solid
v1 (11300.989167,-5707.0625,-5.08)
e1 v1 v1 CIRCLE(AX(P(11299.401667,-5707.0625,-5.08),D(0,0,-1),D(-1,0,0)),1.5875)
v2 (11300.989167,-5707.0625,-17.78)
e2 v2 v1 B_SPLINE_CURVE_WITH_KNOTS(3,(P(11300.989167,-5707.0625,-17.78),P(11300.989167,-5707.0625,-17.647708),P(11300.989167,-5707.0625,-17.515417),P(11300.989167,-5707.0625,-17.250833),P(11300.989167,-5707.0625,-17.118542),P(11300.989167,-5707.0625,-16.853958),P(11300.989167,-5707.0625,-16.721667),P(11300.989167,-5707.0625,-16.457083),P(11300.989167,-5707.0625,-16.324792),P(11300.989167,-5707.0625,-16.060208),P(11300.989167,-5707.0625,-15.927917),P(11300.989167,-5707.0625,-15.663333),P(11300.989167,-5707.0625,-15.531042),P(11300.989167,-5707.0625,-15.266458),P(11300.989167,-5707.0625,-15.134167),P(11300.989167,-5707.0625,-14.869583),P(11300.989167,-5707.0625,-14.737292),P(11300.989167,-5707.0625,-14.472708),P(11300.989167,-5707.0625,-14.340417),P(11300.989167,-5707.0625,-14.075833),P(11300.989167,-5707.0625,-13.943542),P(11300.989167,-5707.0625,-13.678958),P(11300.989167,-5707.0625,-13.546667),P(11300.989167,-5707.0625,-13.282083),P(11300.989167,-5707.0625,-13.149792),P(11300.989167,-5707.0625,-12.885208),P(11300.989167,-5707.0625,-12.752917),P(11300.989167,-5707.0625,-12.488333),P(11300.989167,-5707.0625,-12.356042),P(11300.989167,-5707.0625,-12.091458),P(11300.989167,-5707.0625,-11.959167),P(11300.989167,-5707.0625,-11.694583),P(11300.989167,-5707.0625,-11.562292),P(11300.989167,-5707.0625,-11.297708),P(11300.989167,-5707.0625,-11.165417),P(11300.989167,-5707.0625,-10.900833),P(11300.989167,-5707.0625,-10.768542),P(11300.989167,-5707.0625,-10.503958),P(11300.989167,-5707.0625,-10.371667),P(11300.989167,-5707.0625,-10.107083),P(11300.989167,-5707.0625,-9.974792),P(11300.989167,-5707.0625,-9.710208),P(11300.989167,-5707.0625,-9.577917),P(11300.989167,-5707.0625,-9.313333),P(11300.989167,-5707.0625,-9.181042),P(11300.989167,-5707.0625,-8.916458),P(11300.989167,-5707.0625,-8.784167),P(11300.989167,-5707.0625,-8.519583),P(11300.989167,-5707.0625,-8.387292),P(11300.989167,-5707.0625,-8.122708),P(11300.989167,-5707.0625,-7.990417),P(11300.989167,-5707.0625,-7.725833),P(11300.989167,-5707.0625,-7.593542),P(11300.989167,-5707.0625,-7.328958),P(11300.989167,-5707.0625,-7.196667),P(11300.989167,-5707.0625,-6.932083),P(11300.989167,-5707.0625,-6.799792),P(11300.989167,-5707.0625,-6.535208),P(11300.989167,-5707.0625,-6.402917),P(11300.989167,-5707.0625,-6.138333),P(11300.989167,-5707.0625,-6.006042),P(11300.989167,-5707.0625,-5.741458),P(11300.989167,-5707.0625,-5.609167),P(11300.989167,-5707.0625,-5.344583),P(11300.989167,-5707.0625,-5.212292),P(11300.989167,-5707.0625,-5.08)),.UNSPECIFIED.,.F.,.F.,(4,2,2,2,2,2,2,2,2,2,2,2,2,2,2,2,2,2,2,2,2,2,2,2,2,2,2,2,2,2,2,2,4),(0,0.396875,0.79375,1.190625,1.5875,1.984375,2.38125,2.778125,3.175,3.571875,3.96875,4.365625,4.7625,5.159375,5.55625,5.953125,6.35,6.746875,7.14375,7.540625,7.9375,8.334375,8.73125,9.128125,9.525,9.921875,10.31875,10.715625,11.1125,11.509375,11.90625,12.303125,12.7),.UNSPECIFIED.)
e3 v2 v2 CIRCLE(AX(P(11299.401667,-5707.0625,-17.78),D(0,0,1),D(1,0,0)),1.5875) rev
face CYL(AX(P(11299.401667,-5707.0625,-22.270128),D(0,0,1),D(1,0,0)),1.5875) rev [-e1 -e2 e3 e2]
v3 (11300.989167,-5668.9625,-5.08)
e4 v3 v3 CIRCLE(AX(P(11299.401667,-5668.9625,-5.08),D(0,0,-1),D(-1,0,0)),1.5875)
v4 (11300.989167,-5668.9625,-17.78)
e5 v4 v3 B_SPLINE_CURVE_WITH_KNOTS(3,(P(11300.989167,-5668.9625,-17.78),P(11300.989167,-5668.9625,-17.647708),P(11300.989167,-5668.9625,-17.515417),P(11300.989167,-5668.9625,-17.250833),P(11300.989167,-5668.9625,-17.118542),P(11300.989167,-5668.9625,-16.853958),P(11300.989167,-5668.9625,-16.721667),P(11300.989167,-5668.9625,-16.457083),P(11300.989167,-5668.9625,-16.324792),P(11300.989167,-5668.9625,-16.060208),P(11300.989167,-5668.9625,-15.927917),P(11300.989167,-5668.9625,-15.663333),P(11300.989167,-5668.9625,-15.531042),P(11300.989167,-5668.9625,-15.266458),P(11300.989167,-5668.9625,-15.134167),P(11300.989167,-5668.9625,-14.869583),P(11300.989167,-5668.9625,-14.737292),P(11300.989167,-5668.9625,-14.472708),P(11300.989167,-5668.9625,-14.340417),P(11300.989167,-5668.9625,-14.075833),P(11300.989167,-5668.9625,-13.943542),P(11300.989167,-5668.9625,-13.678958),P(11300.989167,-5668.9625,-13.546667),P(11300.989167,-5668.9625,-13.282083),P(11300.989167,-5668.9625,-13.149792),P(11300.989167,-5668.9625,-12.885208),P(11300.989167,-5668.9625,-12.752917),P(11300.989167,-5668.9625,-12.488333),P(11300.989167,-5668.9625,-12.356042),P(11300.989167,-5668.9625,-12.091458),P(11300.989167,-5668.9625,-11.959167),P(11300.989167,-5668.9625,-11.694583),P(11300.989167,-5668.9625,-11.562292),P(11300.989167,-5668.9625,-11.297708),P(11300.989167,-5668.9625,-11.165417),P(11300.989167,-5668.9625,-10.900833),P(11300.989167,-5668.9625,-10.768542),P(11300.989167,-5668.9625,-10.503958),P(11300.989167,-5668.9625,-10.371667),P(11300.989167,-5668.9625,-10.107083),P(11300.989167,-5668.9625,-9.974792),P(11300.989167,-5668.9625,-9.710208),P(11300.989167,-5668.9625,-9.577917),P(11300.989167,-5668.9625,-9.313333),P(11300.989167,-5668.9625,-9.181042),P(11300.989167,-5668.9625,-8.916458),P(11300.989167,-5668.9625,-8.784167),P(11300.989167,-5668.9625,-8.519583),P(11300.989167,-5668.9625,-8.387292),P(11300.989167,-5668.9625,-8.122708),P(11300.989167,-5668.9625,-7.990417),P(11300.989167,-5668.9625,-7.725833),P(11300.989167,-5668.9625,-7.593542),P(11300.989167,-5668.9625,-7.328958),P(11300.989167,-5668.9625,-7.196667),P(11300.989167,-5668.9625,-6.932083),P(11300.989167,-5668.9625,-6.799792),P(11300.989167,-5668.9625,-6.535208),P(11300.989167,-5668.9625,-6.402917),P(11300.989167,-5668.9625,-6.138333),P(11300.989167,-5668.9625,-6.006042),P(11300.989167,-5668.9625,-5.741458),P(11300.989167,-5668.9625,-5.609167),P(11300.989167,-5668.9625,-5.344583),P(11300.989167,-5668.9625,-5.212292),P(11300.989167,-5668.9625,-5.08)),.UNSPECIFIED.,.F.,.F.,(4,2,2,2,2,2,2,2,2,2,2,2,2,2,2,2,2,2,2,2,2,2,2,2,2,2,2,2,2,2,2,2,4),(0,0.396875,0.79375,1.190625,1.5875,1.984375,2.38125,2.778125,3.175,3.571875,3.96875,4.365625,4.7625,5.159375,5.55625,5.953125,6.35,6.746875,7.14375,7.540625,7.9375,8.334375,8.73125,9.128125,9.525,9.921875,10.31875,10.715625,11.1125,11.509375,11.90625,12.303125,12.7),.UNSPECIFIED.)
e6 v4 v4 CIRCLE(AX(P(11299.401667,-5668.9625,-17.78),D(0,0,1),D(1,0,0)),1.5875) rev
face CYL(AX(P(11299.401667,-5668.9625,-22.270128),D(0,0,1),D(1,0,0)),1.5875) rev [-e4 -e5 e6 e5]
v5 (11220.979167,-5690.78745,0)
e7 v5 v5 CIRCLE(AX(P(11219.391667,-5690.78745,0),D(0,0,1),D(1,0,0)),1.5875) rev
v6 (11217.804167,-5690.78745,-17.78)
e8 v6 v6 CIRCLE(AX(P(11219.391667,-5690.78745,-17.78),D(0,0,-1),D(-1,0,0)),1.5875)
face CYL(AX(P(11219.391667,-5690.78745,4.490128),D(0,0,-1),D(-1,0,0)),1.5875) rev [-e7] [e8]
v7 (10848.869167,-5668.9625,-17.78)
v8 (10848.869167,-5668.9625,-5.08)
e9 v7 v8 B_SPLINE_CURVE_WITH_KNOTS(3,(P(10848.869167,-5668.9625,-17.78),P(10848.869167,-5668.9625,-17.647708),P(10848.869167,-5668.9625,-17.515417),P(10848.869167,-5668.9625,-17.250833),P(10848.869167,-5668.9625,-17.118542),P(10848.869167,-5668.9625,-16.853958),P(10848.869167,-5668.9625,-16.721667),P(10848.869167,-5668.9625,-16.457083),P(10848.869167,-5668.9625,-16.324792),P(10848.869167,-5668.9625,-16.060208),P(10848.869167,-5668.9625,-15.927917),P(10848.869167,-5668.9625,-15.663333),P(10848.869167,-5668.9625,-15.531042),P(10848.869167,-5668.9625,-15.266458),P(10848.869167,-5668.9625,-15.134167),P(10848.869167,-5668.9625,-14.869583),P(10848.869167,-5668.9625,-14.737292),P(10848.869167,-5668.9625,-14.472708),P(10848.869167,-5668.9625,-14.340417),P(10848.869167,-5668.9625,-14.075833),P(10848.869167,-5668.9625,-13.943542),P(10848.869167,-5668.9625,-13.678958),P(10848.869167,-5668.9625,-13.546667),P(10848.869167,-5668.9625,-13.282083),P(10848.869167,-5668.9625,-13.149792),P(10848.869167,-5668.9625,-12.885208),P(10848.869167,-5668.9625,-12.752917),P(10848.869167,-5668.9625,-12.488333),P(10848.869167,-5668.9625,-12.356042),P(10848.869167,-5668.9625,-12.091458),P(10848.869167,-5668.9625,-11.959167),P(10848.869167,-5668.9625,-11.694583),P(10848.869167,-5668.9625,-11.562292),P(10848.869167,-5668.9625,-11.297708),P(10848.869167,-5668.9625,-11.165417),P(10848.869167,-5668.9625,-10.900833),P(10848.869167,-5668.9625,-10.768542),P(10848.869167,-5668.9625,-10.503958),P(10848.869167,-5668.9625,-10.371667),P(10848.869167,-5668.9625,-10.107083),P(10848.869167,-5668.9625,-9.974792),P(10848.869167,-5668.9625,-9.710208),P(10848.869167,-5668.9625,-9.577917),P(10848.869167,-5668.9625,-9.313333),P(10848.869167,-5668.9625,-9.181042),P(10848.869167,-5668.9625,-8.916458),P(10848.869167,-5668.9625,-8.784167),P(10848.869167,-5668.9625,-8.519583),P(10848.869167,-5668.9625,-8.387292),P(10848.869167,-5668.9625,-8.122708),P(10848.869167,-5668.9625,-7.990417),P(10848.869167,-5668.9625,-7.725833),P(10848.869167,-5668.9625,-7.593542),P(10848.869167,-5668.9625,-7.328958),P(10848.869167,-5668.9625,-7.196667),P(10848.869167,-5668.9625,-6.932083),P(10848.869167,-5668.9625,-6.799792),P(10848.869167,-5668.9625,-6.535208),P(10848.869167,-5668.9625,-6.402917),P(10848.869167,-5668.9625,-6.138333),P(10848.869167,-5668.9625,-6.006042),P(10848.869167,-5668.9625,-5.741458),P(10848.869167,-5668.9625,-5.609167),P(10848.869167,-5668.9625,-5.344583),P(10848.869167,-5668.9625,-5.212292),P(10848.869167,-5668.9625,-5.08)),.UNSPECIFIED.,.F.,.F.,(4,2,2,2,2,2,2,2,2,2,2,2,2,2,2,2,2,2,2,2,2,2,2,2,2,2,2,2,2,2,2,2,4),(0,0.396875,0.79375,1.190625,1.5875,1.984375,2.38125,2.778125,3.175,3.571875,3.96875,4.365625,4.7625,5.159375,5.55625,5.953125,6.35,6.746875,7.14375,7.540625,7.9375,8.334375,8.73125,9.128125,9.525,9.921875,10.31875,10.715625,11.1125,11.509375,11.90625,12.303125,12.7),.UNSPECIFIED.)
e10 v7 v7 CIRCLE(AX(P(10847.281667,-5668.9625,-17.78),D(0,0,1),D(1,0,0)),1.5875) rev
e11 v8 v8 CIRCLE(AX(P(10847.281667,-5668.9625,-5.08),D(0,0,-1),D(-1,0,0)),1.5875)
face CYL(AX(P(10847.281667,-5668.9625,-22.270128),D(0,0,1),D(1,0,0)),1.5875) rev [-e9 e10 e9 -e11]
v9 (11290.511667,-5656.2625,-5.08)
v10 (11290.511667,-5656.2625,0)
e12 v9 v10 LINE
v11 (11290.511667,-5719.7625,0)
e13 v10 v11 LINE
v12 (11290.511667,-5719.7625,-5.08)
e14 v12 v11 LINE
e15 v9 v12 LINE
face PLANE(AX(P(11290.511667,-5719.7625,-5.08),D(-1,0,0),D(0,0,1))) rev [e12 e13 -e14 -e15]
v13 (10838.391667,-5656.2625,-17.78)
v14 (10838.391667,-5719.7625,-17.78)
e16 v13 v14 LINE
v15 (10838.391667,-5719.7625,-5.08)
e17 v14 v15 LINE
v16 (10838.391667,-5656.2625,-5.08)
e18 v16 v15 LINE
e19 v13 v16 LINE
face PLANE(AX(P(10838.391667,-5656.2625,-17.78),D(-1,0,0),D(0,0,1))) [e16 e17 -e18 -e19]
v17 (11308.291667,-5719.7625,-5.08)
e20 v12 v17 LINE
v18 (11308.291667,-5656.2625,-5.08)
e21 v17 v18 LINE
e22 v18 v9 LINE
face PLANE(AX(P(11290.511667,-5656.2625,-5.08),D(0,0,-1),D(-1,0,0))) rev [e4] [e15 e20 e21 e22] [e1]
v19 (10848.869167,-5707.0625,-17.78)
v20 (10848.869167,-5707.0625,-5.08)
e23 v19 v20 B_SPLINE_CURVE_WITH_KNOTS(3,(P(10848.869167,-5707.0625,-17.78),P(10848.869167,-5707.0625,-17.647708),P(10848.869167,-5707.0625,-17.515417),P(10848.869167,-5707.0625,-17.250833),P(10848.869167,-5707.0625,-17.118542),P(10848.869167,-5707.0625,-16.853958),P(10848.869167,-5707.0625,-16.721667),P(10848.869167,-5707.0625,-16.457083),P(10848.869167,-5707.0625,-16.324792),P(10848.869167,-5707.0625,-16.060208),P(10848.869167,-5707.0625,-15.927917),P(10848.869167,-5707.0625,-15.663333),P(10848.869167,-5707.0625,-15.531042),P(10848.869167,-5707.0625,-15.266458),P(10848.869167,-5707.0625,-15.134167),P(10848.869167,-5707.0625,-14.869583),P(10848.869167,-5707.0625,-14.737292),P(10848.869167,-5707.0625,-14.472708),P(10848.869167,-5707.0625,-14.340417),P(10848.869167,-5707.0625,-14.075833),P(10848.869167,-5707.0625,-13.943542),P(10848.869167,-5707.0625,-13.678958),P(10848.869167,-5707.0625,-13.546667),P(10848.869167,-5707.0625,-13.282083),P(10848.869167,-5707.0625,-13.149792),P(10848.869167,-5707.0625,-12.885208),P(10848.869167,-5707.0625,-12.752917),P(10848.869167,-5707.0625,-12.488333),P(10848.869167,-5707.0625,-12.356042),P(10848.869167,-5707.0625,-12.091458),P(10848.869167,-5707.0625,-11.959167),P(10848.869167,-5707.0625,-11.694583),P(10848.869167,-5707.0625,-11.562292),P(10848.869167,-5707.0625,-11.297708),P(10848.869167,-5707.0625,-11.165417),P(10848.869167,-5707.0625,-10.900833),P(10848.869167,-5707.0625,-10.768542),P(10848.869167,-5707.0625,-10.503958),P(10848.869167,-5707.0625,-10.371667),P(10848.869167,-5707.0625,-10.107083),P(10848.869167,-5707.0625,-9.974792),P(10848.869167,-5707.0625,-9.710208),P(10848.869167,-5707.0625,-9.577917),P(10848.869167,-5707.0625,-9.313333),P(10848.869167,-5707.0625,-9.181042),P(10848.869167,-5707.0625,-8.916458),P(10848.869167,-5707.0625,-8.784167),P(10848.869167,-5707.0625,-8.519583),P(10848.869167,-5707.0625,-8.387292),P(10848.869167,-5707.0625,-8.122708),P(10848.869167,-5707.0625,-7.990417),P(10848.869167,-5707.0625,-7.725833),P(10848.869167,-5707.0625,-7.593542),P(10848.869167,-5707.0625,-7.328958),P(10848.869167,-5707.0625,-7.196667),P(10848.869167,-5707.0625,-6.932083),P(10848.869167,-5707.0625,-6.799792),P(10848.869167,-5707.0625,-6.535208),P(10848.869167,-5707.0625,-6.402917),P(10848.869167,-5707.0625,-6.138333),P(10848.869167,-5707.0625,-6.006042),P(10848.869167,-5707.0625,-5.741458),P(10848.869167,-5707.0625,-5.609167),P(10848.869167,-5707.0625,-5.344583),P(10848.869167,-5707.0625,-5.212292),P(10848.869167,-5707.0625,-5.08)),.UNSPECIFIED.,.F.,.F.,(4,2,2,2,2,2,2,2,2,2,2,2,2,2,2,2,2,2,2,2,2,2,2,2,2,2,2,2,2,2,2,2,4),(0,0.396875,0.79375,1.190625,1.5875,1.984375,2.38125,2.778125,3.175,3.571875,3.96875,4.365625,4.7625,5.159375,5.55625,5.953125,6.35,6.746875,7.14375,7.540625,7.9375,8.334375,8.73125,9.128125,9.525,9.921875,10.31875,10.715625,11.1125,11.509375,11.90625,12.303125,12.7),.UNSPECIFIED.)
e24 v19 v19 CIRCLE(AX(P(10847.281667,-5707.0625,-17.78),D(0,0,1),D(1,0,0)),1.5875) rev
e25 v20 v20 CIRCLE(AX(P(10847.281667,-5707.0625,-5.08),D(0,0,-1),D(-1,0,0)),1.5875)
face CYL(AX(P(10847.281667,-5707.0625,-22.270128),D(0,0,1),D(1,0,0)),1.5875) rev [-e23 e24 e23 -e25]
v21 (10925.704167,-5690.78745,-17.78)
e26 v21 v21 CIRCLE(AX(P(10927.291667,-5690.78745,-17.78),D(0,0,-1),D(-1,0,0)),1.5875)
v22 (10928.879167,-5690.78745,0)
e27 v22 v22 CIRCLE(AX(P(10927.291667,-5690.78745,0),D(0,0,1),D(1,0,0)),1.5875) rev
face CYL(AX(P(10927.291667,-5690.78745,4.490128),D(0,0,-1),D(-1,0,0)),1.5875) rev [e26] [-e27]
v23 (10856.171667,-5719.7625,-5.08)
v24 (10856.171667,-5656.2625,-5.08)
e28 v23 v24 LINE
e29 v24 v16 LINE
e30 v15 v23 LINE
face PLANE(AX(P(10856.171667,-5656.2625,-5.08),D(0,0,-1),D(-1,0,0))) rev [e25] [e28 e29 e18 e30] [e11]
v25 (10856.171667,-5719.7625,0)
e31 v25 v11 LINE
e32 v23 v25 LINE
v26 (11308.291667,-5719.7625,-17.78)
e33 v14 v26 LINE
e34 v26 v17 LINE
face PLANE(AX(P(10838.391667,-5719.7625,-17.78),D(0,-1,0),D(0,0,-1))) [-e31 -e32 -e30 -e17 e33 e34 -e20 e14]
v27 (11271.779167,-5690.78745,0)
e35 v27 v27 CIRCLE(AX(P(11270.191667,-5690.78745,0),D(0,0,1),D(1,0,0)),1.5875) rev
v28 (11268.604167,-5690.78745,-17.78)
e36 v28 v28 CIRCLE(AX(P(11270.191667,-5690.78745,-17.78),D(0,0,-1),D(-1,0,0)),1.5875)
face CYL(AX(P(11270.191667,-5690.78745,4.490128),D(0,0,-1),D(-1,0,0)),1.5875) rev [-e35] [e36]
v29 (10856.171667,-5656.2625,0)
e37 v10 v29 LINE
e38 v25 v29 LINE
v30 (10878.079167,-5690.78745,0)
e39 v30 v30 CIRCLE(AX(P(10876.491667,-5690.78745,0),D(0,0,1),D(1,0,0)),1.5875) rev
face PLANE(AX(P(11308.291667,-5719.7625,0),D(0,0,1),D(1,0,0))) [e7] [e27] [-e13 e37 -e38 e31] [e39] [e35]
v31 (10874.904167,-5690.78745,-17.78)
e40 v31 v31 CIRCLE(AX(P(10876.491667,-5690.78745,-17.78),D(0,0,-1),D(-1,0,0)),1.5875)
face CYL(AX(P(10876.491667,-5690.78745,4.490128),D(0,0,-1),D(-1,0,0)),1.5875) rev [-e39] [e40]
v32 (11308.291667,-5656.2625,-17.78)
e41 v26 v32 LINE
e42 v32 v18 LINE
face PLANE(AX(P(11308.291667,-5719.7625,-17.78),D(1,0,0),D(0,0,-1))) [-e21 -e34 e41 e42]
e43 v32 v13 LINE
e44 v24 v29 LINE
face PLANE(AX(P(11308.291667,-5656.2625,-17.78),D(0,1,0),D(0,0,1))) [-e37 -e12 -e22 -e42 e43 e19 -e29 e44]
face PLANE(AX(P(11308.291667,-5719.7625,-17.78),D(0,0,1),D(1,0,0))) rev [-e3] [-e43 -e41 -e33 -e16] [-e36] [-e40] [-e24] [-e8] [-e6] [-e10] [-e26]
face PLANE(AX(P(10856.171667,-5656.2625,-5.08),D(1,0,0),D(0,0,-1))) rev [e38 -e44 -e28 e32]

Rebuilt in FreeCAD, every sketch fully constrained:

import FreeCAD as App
import Part
import Sketcher
from FreeCAD import Vector
Q = App.Units.Quantity


def add_polygon(sketch, points):
    """Adds a closed chain of lines whose ends are joined by coincident constraints."""
    first, n = sketch.GeometryCount, len(points)
    for a, b in zip(points, points[1:] + points[:1]):
        sketch.addGeometry(Part.LineSegment(App.Vector(*a, 0), App.Vector(*b, 0)), False)
    for i in range(n):
        sketch.addConstraint(Sketcher.Constraint("Coincident", first + i, 2, first + (i + 1) % n, 1))

doc = App.newDocument("Part")
body = doc.addObject("PartDesign::Body", "Body")

sketch1 = doc.addObject("Sketcher::SketchObject", "Sketch")
body.addObject(sketch1)
sketch1.AttachmentSupport = (doc.XY_Plane, [""])
sketch1.MapMode = "FlatFace"
add_polygon(sketch1, [(10838, -5656), (10838, -5720), (11308, -5720), (11308, -5656)])
sketch1.addConstraint(Sketcher.Constraint("Vertical", 0))
sketch1.addConstraint(Sketcher.Constraint("Horizontal", 1))
sketch1.addConstraint(Sketcher.Constraint("Vertical", 2))
sketch1.addConstraint(Sketcher.Constraint("Horizontal", 3))
sketch1.addConstraint(Sketcher.Constraint("DistanceX", 1, 1, 1, 2, Q("18.5 in")))
sketch1.addConstraint(Sketcher.Constraint("DistanceY", 0, 2, 0, 1, Q("2.5 in")))
sketch1.addConstraint(Sketcher.Constraint("DistanceY", 0, 2, -1, 1, Q("225.1875 in")))
sketch1.addConstraint(Sketcher.Constraint("DistanceX", -1, 1, 0, 2, 10838.391667))
pad1 = doc.addObject("PartDesign::Pad", "Pad")
body.addObject(pad1)
pad1.Profile = sketch1
pad1.Length = Q("0.7 in")
pad1.Reversed = True

sketch2 = doc.addObject("Sketcher::SketchObject", "Sketch001")
body.addObject(sketch2)
sketch2.AttachmentSupport = (doc.XY_Plane, [""])
sketch2.MapMode = "FlatFace"
add_polygon(sketch2, [(11291, -5656), (11291, -5720), (11308, -5720), (11308, -5656)])
add_polygon(sketch2, [(10838, -5656), (10838, -5720), (10856, -5720), (10856, -5656)])
sketch2.addConstraint(Sketcher.Constraint("Vertical", 0))
sketch2.addConstraint(Sketcher.Constraint("Horizontal", 1))
sketch2.addConstraint(Sketcher.Constraint("Vertical", 2))
sketch2.addConstraint(Sketcher.Constraint("Horizontal", 3))
sketch2.addConstraint(Sketcher.Constraint("Vertical", 4))
sketch2.addConstraint(Sketcher.Constraint("Horizontal", 5))
sketch2.addConstraint(Sketcher.Constraint("Vertical", 6))
sketch2.addConstraint(Sketcher.Constraint("Horizontal", 7))
sketch2.addConstraint(Sketcher.Constraint("Horizontal", 1, 2, 4, 2))
sketch2.addConstraint(Sketcher.Constraint("Horizontal", 3, 2, 6, 2))
sketch2.addConstraint(Sketcher.Constraint("Equal", 3, 5))
sketch2.addConstraint(Sketcher.Constraint("DistanceX", 1, 1, 1, 2, Q("0.7 in")))
sketch2.addConstraint(Sketcher.Constraint("DistanceY", 0, 2, 0, 1, Q("2.5 in")))
sketch2.addConstraint(Sketcher.Constraint("DistanceX", 4, 2, 0, 2, Q("17.8 in")))
sketch2.addConstraint(Sketcher.Constraint("DistanceY", 0, 2, -1, 1, Q("225.1875 in")))
sketch2.addConstraint(Sketcher.Constraint("DistanceX", -1, 1, 0, 2, 11290.511667))
pocket1 = doc.addObject("PartDesign::Pocket", "Pocket")
body.addObject(pocket1)
pocket1.Profile = sketch2
pocket1.Length = Q("0.2 in")

sketch3 = doc.addObject("Sketcher::SketchObject", "Sketch002")
body.addObject(sketch3)
sketch3.AttachmentSupport = (doc.XY_Plane, [""])
sketch3.MapMode = "FlatFace"
sketch3.addGeometry(Part.Circle(Vector(10847.281667, -5668.9625, 0), Vector(0, 0, 1), 1.5875), False)
sketch3.addGeometry(Part.Circle(Vector(10847.281667, -5707.0625, 0), Vector(0, 0, 1), 1.5875), False)
sketch3.addGeometry(Part.Circle(Vector(11299.401667, -5707.0625, 0), Vector(0, 0, 1), 1.5875), False)
sketch3.addGeometry(Part.Circle(Vector(11299.401667, -5668.9625, 0), Vector(0, 0, 1), 1.5875), False)
sketch3.addConstraint(Sketcher.Constraint("Equal", 0, 1))
sketch3.addConstraint(Sketcher.Constraint("Equal", 1, 2))
sketch3.addConstraint(Sketcher.Constraint("Equal", 2, 3))
sketch3.addConstraint(Sketcher.Constraint("Horizontal", 1, 3, 2, 3))
sketch3.addConstraint(Sketcher.Constraint("Horizontal", 0, 3, 3, 3))
sketch3.addConstraint(Sketcher.Constraint("Vertical", 0, 3, 1, 3))
sketch3.addConstraint(Sketcher.Constraint("Vertical", 2, 3, 3, 3))
sketch3.addConstraint(Sketcher.Constraint("Diameter", 0, Q("0.125 in")))
sketch3.addConstraint(Sketcher.Constraint("DistanceY", 1, 3, 0, 3, Q("1.5 in")))
sketch3.addConstraint(Sketcher.Constraint("DistanceX", 1, 3, 2, 3, Q("17.8 in")))
sketch3.addConstraint(Sketcher.Constraint("DistanceY", 0, 3, -1, 1, Q("223.1875 in")))
sketch3.addConstraint(Sketcher.Constraint("DistanceX", -1, 1, 0, 3, 10847.281667))
pocket2 = doc.addObject("PartDesign::Pocket", "Pocket001")
body.addObject(pocket2)
pocket2.Profile = sketch3
pocket2.Length = Q("0.7 in")

sketch4 = doc.addObject("Sketcher::SketchObject", "Sketch003")
body.addObject(sketch4)
sketch4.AttachmentSupport = (doc.XY_Plane, [""])
sketch4.MapMode = "FlatFace"
sketch4.AttachmentOffset = App.Placement(Vector(0, 0, -0.7 * 25.4), App.Rotation())
sketch4.addGeometry(Part.Circle(Vector(10876.491667, -5690.78745, 0), Vector(0, 0, 1), 1.5875), False)
sketch4.addGeometry(Part.Circle(Vector(10927.291667, -5690.78745, 0), Vector(0, 0, 1), 1.5875), False)
sketch4.addGeometry(Part.Circle(Vector(11219.391667, -5690.78745, 0), Vector(0, 0, 1), 1.5875), False)
sketch4.addGeometry(Part.Circle(Vector(11270.191667, -5690.78745, 0), Vector(0, 0, 1), 1.5875), False)
sketch4.addConstraint(Sketcher.Constraint("Equal", 0, 1))
sketch4.addConstraint(Sketcher.Constraint("Equal", 1, 2))
sketch4.addConstraint(Sketcher.Constraint("Equal", 2, 3))
sketch4.addConstraint(Sketcher.Constraint("Horizontal", 0, 3, 1, 3))
sketch4.addConstraint(Sketcher.Constraint("Horizontal", 1, 3, 2, 3))
sketch4.addConstraint(Sketcher.Constraint("Horizontal", 2, 3, 3, 3))
sketch4.addConstraint(Sketcher.Constraint("Diameter", 0, Q("0.125 in")))
sketch4.addConstraint(Sketcher.Constraint("DistanceX", 0, 3, 1, 3, Q("2 in")))
sketch4.addConstraint(Sketcher.Constraint("DistanceX", 2, 3, 3, 3, Q("2 in")))
sketch4.addConstraint(Sketcher.Constraint("DistanceX", 1, 3, 2, 3, Q("11.5 in")))
sketch4.addConstraint(Sketcher.Constraint("DistanceY", 0, 3, -1, 1, 5690.78745))
sketch4.addConstraint(Sketcher.Constraint("DistanceX", -1, 1, 0, 3, 10876.491667))
pocket3 = doc.addObject("PartDesign::Pocket", "Pocket002")
body.addObject(pocket3)
pocket3.Profile = sketch4
pocket3.Length = Q("0.7 in")
pocket3.Reversed = True

doc.recompute()
